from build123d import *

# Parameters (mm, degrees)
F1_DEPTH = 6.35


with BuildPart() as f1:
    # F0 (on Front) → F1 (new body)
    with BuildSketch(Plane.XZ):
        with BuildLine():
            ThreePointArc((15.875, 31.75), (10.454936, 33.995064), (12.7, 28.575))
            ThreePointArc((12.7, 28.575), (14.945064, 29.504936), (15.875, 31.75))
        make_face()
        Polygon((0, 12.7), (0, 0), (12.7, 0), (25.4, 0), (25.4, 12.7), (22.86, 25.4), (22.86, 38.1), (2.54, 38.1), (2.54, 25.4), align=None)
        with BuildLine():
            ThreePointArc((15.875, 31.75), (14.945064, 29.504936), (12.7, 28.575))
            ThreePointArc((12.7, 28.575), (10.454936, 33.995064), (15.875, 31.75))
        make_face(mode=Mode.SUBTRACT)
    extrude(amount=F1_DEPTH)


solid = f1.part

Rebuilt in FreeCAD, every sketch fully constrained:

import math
import FreeCAD as App
import Part
import Sketcher
from FreeCAD import Vector
Q = App.Units.Quantity

doc = App.newDocument("Part")
body = doc.addObject("PartDesign::Body", "Body")

# Sketch on XZ plane
sketch1 = body.newObject("Sketcher::SketchObject", "Sketch")
sketch1.AttachmentSupport = (doc.getObject("XZ_Plane"), [""])
sketch1.MapMode = "FlatFace"
sketch1.addGeometry(Part.LineSegment(Vector(0, 12.7, 0), Vector(0, 0, 0)), False)
sketch1.addGeometry(Part.LineSegment(Vector(0, 0, 0), Vector(25.4, 0, 0)), False)
sketch1.addGeometry(Part.LineSegment(Vector(25.4, 0, 0), Vector(25.4, 12.7, 0)), False)
sketch1.addGeometry(Part.LineSegment(Vector(25.4, 12.7, 0), Vector(22.9, 25.4, 0)), False)
sketch1.addGeometry(Part.LineSegment(Vector(22.9, 25.4, 0), Vector(22.9, 38.1, 0)), False)
sketch1.addGeometry(Part.LineSegment(Vector(22.9, 38.1, 0), Vector(2.5, 38.1, 0)), False)
sketch1.addGeometry(Part.LineSegment(Vector(2.5, 38.1, 0), Vector(2.5, 25.4, 0)), False)
sketch1.addGeometry(Part.LineSegment(Vector(2.5, 25.4, 0), Vector(0, 12.7, 0)), False)
sketch1.addGeometry(Part.ArcOfCircle(Part.Circle(Vector(12.7, 31.7, 0), Vector(0, 0, 1), 3.2), math.radians(0), math.radians(270)), False)
sketch1.addGeometry(Part.ArcOfCircle(Part.Circle(Vector(12.7, 31.8, 0), Vector(0, 0, 1), 3.2), math.radians(-90), math.radians(0)), False)
sketch1.addConstraint(Sketcher.Constraint("Coincident", 0, 2, 1, 1))
sketch1.addConstraint(Sketcher.Constraint("Coincident", 1, 2, 2, 1))
sketch1.addConstraint(Sketcher.Constraint("Coincident", 2, 2, 3, 1))
sketch1.addConstraint(Sketcher.Constraint("Coincident", 3, 2, 4, 1))
sketch1.addConstraint(Sketcher.Constraint("Coincident", 4, 2, 5, 1))
sketch1.addConstraint(Sketcher.Constraint("Coincident", 5, 2, 6, 1))
sketch1.addConstraint(Sketcher.Constraint("Coincident", 6, 2, 7, 1))
sketch1.addConstraint(Sketcher.Constraint("Coincident", 7, 2, 0, 1))
sketch1.addConstraint(Sketcher.Constraint("Tangent", 8, 1, 9, 2))
sketch1.addConstraint(Sketcher.Constraint("Coincident", 9, 1, 8, 2))
sketch1.addConstraint(Sketcher.Constraint("Vertical", 0))
sketch1.addConstraint(Sketcher.Constraint("Horizontal", 1))
sketch1.addConstraint(Sketcher.Constraint("Vertical", 2))
sketch1.addConstraint(Sketcher.Constraint("Vertical", 4))
sketch1.addConstraint(Sketcher.Constraint("Horizontal", 5))
sketch1.addConstraint(Sketcher.Constraint("Vertical", 6))
sketch1.addConstraint(Sketcher.Constraint("Coincident", 0, 2, -1, 1))
sketch1.addConstraint(Sketcher.Constraint("Horizontal", 3, 2, 6, 2))
sketch1.addConstraint(Sketcher.Constraint("Horizontal", 2, 2, 7, 2))
sketch1.addConstraint(Sketcher.Constraint("Horizontal", 9, 3, 8, 1))
sketch1.addConstraint(Sketcher.Constraint("Vertical", 8, 3, 9, 1))
sketch1.addConstraint(Sketcher.Constraint("Equal", 2, 4))
sketch1.addConstraint(Sketcher.Constraint("Equal", 3, 7))
sketch1.addConstraint(Sketcher.Constraint("DistanceX", 1, 1, 1, 2, Q("1 in")))
sketch1.addConstraint(Sketcher.Constraint("DistanceX", 5, 2, 5, 1, Q("0.8 in")))
sketch1.addConstraint(Sketcher.Constraint("DistanceY", 0, 2, 0, 1, Q("0.5 in")))
sketch1.addConstraint(Sketcher.Constraint("DistanceY", -1, 1, 3, 2, Q("1 in")))
sketch1.addConstraint(Sketcher.Constraint("Radius", 8, Q("0.125 in")))
sketch1.addConstraint(Sketcher.Constraint("DistanceX", -1, 1, 8, 3, Q("0.5 in")))
sketch1.addConstraint(Sketcher.Constraint("DistanceY", -1, 1, 8, 3, Q("1.25 in")))
pad1 = body.newObject("PartDesign::Pad", "Pad")
pad1.Profile = sketch1
pad1.Length = Q("0.25 in")

doc.recompute()
